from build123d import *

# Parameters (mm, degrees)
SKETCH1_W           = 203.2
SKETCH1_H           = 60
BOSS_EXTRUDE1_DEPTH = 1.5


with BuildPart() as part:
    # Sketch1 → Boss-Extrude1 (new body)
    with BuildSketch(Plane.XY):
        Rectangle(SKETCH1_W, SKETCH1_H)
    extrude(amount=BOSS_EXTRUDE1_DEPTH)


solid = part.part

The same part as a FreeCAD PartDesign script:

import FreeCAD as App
import Part
import Sketcher

V = App.Vector
Q = App.Units.Quantity


def add_polygon(sketch, points):
    """Adds a closed chain of lines whose ends are joined by coincident constraints."""
    first, n = sketch.GeometryCount, len(points)
    for a, b in zip(points, points[1:] + points[:1]):
        sketch.addGeometry(Part.LineSegment(App.Vector(*a, 0), App.Vector(*b, 0)), False)
    for i in range(n):
        sketch.addConstraint(Sketcher.Constraint("Coincident", first + i, 2, first + (i + 1) % n, 1))

doc = App.newDocument("Part")
body = doc.addObject("PartDesign::Body", "Body")

# Sketch on XY plane
sketch1 = body.newObject("Sketcher::SketchObject", "Sketch")
sketch1.AttachmentSupport = (doc.getObject("XY_Plane"), [""])
sketch1.MapMode = "FlatFace"
add_polygon(sketch1, [(-102, 30), (-102, -30), (102, -30), (102, 30)])  # lines 0-3
sketch1.addConstraint([
    Sketcher.Constraint("Vertical", 0),
    Sketcher.Constraint("Horizontal", 1),
    Sketcher.Constraint("Vertical", 2),
    Sketcher.Constraint("Horizontal", 3),
    Sketcher.Constraint("Symmetric", 0, 2, 2, 2, -1, 1),
    Sketcher.Constraint("DistanceY", 0, 2, 0, 1, Q("60 mm")),
    Sketcher.Constraint("DistanceX", 1, 1, 1, 2, Q("203.2 mm")),
])
pad1 = body.newObject("PartDesign::Pad", "Pad")
pad1.Profile = sketch1
pad1.Length = 1.5

doc.recompute()
